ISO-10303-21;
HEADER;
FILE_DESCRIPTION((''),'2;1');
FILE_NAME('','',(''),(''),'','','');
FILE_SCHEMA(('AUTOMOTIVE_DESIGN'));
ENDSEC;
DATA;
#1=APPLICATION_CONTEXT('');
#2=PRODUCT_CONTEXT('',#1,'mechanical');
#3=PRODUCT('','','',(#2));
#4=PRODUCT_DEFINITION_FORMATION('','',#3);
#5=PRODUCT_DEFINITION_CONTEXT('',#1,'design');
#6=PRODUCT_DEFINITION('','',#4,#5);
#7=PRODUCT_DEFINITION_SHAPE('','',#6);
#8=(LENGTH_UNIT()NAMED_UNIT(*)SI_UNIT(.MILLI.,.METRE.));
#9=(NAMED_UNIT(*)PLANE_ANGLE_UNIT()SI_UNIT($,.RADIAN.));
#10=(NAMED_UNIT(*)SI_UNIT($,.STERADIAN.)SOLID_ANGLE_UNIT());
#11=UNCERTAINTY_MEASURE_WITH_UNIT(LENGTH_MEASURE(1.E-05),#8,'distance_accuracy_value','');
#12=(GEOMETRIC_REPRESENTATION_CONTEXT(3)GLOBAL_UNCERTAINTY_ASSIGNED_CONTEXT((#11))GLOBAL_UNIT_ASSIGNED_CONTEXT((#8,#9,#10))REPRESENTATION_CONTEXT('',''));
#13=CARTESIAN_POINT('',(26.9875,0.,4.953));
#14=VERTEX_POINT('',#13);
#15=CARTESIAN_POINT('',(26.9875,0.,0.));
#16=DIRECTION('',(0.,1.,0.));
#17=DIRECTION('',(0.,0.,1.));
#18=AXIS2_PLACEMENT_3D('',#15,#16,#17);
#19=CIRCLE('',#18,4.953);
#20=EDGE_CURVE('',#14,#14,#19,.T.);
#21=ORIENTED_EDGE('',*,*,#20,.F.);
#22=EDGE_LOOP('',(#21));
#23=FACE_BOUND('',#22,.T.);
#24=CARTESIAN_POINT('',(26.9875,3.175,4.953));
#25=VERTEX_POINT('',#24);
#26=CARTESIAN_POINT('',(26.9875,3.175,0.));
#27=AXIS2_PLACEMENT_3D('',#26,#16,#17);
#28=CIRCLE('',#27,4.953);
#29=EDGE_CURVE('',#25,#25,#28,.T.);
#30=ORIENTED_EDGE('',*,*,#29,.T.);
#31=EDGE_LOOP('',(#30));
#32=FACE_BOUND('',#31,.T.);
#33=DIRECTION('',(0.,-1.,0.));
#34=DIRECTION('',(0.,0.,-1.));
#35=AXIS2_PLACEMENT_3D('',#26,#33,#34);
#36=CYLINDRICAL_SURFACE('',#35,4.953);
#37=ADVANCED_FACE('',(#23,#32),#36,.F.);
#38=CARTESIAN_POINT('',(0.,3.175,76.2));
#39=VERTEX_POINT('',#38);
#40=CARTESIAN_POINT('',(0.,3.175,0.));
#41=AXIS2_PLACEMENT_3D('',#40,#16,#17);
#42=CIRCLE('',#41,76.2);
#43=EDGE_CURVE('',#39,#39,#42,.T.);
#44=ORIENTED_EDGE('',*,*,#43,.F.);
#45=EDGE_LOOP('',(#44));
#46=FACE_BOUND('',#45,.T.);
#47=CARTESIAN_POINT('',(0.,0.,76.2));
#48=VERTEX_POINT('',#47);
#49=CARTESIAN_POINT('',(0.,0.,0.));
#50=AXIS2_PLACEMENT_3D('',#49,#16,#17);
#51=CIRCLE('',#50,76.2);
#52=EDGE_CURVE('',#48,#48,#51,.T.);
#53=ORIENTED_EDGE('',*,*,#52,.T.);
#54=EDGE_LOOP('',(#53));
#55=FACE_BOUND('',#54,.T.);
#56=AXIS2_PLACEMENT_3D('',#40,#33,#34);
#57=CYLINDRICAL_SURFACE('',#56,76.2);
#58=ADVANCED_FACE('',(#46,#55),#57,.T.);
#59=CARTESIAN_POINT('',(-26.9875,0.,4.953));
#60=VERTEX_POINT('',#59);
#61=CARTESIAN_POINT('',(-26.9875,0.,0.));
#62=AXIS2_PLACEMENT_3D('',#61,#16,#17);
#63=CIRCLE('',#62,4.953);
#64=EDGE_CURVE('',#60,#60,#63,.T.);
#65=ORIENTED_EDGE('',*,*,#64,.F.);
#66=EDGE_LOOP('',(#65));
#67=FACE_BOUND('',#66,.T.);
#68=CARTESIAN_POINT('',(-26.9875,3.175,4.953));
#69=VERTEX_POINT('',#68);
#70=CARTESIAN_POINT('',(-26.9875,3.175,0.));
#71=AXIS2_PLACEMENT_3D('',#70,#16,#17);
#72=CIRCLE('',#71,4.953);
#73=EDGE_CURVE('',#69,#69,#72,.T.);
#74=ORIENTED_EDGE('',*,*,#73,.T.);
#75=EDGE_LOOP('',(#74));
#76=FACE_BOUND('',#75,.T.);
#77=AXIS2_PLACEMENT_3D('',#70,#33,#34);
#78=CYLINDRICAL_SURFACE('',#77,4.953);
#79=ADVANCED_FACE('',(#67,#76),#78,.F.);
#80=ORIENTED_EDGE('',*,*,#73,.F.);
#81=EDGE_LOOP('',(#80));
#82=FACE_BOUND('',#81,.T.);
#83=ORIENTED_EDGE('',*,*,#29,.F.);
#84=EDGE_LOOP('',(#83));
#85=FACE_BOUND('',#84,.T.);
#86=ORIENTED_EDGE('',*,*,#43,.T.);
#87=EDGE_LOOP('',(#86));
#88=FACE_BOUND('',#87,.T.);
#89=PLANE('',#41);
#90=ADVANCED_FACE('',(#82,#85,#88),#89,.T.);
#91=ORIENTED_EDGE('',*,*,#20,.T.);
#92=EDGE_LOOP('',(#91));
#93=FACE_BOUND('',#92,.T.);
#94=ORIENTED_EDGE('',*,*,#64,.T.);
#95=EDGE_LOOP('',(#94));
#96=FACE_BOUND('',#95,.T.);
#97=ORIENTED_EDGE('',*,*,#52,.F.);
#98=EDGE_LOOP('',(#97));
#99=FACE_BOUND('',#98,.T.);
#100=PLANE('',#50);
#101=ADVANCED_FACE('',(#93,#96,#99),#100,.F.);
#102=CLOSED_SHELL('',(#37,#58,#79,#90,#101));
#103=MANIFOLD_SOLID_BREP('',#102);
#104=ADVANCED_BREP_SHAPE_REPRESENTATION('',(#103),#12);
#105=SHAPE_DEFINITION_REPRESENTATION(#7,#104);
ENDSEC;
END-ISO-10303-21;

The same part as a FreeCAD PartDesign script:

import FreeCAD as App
import Part
import Sketcher
from FreeCAD import Vector
Q = App.Units.Quantity

doc = App.newDocument("Part")
body = doc.addObject("PartDesign::Body", "Body")

sketch1 = body.newObject("Sketcher::SketchObject", "Sketch")
sketch1.AttachmentSupport = (doc.getObject("XZ_Plane"), [""])
sketch1.MapMode = "FlatFace"
sketch1.addGeometry([
    Part.Circle(Vector(0, 0, 0), Vector(0, 0, 1), 76.2),
    Part.Circle(Vector(-26.9875, 0, 0), Vector(0, 0, 1), 4.953),
    Part.Circle(Vector(26.9875, 0, 0), Vector(0, 0, 1), 4.953),
], False)
sketch1.addConstraint([
    Sketcher.Constraint("Coincident", 0, 3, -1, 1),
    Sketcher.Constraint("Equal", 1, 2),
    Sketcher.Constraint("Symmetric", 1, 3, 2, 3, -1, 1),
    Sketcher.Constraint("PointOnObject", 1, 3, -1),
    Sketcher.Constraint("Diameter", 0, Q("6 in")),
    Sketcher.Constraint("Diameter", 1, Q("0.39 in")),
    Sketcher.Constraint("DistanceX", 1, 3, -1, 1, Q("1.0625 in")),
])
pad1 = body.newObject("PartDesign::Pad", "Pad")
pad1.Profile = sketch1
pad1.Length = Q("0.125 in")
pad1.Reversed = True

doc.recompute()
